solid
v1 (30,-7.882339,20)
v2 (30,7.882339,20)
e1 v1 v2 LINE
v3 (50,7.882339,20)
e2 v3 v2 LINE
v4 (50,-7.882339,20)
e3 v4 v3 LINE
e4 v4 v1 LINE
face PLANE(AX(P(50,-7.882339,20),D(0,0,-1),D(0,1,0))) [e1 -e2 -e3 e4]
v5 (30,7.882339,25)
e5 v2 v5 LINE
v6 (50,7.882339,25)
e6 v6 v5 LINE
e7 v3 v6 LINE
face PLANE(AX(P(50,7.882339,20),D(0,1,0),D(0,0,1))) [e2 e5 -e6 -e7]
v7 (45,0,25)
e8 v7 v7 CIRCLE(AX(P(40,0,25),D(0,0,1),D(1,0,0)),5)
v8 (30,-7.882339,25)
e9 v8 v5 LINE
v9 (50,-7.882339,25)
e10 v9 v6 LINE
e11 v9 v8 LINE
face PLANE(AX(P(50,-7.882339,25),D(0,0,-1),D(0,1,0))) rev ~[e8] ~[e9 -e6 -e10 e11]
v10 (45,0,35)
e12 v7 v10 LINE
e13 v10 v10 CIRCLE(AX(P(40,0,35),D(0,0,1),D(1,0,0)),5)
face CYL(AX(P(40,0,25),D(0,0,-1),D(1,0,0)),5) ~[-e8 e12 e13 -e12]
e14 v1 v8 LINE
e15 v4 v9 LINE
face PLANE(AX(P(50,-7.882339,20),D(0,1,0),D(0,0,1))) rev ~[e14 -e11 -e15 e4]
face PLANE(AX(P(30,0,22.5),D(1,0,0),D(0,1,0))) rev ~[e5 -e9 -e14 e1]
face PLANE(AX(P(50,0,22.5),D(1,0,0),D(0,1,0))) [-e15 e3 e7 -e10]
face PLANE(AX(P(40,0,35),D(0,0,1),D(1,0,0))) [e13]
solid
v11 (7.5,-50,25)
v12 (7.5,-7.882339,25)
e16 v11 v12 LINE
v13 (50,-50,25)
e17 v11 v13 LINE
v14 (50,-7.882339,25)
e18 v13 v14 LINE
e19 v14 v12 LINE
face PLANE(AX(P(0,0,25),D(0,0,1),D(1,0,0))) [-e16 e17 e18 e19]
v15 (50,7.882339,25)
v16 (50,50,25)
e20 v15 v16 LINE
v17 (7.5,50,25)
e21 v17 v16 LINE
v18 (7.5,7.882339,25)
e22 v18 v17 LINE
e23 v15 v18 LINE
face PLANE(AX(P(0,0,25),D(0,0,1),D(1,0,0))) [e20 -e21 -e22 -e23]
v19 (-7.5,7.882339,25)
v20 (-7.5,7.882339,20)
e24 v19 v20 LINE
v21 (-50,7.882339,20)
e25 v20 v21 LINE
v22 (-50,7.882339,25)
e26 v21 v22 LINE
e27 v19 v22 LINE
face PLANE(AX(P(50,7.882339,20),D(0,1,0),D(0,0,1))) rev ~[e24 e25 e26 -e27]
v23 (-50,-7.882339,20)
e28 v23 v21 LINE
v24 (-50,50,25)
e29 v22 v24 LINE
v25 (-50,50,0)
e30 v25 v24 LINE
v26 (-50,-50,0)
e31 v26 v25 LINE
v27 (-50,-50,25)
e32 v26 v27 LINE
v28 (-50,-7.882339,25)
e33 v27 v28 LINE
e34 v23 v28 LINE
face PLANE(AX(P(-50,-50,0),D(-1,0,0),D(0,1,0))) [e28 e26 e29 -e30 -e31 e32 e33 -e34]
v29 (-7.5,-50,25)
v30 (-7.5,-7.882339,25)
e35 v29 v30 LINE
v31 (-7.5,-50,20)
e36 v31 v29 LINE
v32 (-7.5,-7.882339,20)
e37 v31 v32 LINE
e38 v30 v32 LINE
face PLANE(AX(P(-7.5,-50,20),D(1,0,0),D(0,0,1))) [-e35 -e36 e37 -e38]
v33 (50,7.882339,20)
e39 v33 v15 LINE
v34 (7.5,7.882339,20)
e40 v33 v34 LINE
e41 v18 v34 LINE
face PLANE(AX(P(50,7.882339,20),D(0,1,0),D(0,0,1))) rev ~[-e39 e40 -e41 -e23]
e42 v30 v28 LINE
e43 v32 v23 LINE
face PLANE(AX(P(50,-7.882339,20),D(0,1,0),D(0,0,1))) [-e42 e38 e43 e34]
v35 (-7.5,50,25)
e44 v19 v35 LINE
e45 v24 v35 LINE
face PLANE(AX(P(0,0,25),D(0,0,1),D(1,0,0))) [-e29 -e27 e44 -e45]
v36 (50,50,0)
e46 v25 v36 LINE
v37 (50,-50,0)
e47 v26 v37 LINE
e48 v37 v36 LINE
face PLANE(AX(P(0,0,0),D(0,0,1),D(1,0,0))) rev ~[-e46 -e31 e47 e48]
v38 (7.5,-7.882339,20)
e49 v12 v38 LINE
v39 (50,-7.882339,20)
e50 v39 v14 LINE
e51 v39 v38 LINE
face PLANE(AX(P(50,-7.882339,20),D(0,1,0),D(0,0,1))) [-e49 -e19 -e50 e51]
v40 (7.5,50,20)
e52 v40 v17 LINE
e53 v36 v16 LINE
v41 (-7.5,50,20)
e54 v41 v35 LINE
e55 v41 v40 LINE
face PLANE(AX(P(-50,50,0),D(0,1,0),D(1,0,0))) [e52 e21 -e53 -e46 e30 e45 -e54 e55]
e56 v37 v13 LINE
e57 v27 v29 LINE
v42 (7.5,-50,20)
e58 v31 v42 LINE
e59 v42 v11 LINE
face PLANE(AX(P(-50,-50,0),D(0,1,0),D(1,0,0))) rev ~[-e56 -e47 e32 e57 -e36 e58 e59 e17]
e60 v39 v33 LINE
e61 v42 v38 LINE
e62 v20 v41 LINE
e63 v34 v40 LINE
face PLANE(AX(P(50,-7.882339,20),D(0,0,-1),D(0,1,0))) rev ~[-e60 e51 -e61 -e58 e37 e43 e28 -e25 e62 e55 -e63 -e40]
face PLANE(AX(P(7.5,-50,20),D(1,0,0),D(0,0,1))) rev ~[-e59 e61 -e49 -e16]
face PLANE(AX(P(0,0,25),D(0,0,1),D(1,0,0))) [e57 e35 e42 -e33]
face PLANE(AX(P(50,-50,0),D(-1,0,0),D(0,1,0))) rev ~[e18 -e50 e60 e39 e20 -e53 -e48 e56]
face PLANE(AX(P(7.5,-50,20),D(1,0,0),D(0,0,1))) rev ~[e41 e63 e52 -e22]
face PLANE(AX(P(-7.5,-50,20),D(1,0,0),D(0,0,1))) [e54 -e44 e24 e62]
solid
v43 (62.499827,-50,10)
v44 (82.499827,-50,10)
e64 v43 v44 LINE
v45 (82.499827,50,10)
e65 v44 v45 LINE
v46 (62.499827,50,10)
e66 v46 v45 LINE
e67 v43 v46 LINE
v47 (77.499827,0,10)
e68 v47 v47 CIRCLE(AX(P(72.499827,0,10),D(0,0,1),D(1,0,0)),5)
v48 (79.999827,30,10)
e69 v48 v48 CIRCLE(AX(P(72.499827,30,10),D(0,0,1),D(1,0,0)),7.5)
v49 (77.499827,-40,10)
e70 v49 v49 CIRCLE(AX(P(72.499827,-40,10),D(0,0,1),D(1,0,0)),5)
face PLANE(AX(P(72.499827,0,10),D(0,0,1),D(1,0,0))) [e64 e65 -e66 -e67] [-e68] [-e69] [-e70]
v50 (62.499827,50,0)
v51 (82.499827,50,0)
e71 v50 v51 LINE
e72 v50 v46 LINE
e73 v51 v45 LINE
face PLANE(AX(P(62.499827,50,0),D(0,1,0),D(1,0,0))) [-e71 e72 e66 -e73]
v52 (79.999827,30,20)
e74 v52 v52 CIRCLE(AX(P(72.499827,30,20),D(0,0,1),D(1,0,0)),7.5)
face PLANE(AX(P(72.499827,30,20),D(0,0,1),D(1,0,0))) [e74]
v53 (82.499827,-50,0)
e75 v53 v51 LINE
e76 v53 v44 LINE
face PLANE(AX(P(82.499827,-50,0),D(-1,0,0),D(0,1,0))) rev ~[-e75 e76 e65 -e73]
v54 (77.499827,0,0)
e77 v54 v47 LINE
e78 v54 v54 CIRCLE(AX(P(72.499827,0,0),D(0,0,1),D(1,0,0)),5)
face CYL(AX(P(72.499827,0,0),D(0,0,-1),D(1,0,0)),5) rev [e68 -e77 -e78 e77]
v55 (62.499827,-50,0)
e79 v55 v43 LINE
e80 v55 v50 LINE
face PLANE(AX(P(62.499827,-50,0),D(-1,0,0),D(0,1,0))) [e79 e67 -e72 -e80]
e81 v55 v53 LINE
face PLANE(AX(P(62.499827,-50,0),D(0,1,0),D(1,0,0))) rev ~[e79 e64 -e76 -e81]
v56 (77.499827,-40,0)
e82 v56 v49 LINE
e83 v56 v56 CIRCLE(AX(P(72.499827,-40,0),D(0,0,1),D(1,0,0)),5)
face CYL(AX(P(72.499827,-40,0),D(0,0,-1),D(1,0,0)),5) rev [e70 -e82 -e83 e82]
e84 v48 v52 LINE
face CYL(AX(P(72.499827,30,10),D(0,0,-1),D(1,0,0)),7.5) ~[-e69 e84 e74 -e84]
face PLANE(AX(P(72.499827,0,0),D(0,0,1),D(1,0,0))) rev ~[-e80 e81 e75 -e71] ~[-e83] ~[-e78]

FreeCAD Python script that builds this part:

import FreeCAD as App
import Part
import Sketcher
Q = App.Units.Quantity

doc = App.newDocument("Part")
body = doc.addObject("PartDesign::Body", "Body")

sketch1 = doc.addObject("Sketcher::SketchObject", "Sketch")
body.addObject(sketch1)
sketch1.AttachmentSupport = (doc.XY_Plane, [""])
sketch1.MapMode = "FlatFace"
sketch1.addGeometry([
    Part.LineSegment(App.Vector(-50, 50, 0), App.Vector(-50, -50, 0)),
    Part.LineSegment(App.Vector(-50, -50, 0), App.Vector(50, -50, 0)),
    Part.LineSegment(App.Vector(50, -50, 0), App.Vector(50, 50, 0)),
    Part.LineSegment(App.Vector(50, 50, 0), App.Vector(-50, 50, 0)),
], False)
sketch1.addConstraint([
    Sketcher.Constraint("Coincident", 0, 2, 1, 1),
    Sketcher.Constraint("Coincident", 1, 2, 2, 1),
    Sketcher.Constraint("Coincident", 2, 2, 3, 1),
    Sketcher.Constraint("Coincident", 3, 2, 0, 1),
    Sketcher.Constraint("Vertical", 0),
    Sketcher.Constraint("Horizontal", 1),
    Sketcher.Constraint("Vertical", 2),
    Sketcher.Constraint("Horizontal", 3),
    Sketcher.Constraint("Symmetric", 0, 2, 2, 2, -1, 1),
    Sketcher.Constraint("Equal", 3, 0),
    Sketcher.Constraint("DistanceX", 1, 1, 1, 2, Q("100 mm")),
])
pad1 = doc.addObject("PartDesign::Pad", "Pad")
body.addObject(pad1)
pad1.Profile = sketch1
pad1.Length = 25

sketch2 = doc.addObject("Sketcher::SketchObject", "Sketch001")
body.addObject(sketch2)
sketch2.AttachmentSupport = (doc.YZ_Plane, [""])
sketch2.MapMode = "FlatFace"
sketch2.AttachmentOffset = App.Placement(App.Vector(0, 0, 50), App.Rotation())
sketch2.addGeometry([
    Part.LineSegment(App.Vector(-8, 25, 0), App.Vector(-8, 20, 0)),
    Part.LineSegment(App.Vector(-8, 20, 0), App.Vector(8, 20, 0)),
    Part.LineSegment(App.Vector(8, 20, 0), App.Vector(8, 25, 0)),
    Part.LineSegment(App.Vector(8, 25, 0), App.Vector(-8, 25, 0)),
], False)
sketch2.addConstraint([
    Sketcher.Constraint("Coincident", 0, 2, 1, 1),
    Sketcher.Constraint("Coincident", 1, 2, 2, 1),
    Sketcher.Constraint("Coincident", 2, 2, 3, 1),
    Sketcher.Constraint("Coincident", 3, 2, 0, 1),
    Sketcher.Constraint("Vertical", 0),
    Sketcher.Constraint("Horizontal", 1),
    Sketcher.Constraint("Vertical", 2),
    Sketcher.Constraint("Horizontal", 3),
    Sketcher.Constraint("DistanceY", 0, 2, 0, 1, Q("5 mm")),
    Sketcher.Constraint("DistanceY", -1, 1, 0, 2, Q("20 mm")),
    Sketcher.Constraint("DistanceX", 1, 1, 1, 2, Q("15.764678 mm")),
    Sketcher.Constraint("DistanceX", 0, 2, -1, 1, Q("7.882339 mm")),
])
pocket1 = doc.addObject("PartDesign::Pocket", "Pocket")
body.addObject(pocket1)
pocket1.Profile = sketch2
pocket1.Type = "ThroughAll"

sketch3 = doc.addObject("Sketcher::SketchObject", "Sketch002")
body.addObject(sketch3)
sketch3.AttachmentSupport = (doc.XZ_Plane, [""])
sketch3.MapMode = "FlatFace"
sketch3.AttachmentOffset = App.Placement(App.Vector(0, 0, 50), App.Rotation())
sketch3.addGeometry([
    Part.LineSegment(App.Vector(-8, 25, 0), App.Vector(-8, 20, 0)),
    Part.LineSegment(App.Vector(-8, 20, 0), App.Vector(8, 20, 0)),
    Part.LineSegment(App.Vector(8, 20, 0), App.Vector(8, 25, 0)),
    Part.LineSegment(App.Vector(8, 25, 0), App.Vector(-8, 25, 0)),
], False)
sketch3.addConstraint([
    Sketcher.Constraint("Coincident", 0, 2, 1, 1),
    Sketcher.Constraint("Coincident", 1, 2, 2, 1),
    Sketcher.Constraint("Coincident", 2, 2, 3, 1),
    Sketcher.Constraint("Coincident", 3, 2, 0, 1),
    Sketcher.Constraint("Vertical", 0),
    Sketcher.Constraint("Horizontal", 1),
    Sketcher.Constraint("Vertical", 2),
    Sketcher.Constraint("Horizontal", 3),
    Sketcher.Constraint("DistanceX", 1, 1, 1, 2, Q("15 mm")),
    Sketcher.Constraint("DistanceY", 0, 2, 0, 1, Q("5 mm")),
    Sketcher.Constraint("DistanceY", -1, 1, 0, 2, Q("20 mm")),
    Sketcher.Constraint("DistanceX", 0, 2, -1, 1, Q("7.5 mm")),
])
pocket2 = doc.addObject("PartDesign::Pocket", "Pocket001")
body.addObject(pocket2)
pocket2.Profile = sketch3
pocket2.Type = "ThroughAll"
body2 = doc.addObject("PartDesign::Body", "Body001")

sketch4 = doc.addObject("Sketcher::SketchObject", "Sketch003")
body2.addObject(sketch4)
sketch4.AttachmentSupport = (doc.getObject("YZ_Plane001"), [""])
sketch4.MapMode = "FlatFace"
sketch4.AttachmentOffset = App.Placement(App.Vector(0, 0, 50), App.Rotation())
sketch4.addGeometry([
    Part.LineSegment(App.Vector(-8, 25, 0), App.Vector(-8, 20, 0)),
    Part.LineSegment(App.Vector(-8, 20, 0), App.Vector(8, 20, 0)),
    Part.LineSegment(App.Vector(8, 20, 0), App.Vector(8, 25, 0)),
    Part.LineSegment(App.Vector(8, 25, 0), App.Vector(-8, 25, 0)),
], False)
sketch4.addConstraint([
    Sketcher.Constraint("Coincident", 0, 2, 1, 1),
    Sketcher.Constraint("Coincident", 1, 2, 2, 1),
    Sketcher.Constraint("Coincident", 2, 2, 3, 1),
    Sketcher.Constraint("Coincident", 3, 2, 0, 1),
    Sketcher.Constraint("Vertical", 0),
    Sketcher.Constraint("Horizontal", 1),
    Sketcher.Constraint("Vertical", 2),
    Sketcher.Constraint("Horizontal", 3),
    Sketcher.Constraint("DistanceY", 0, 2, 0, 1, Q("5 mm")),
    Sketcher.Constraint("DistanceY", -1, 1, 0, 2, Q("20 mm")),
    Sketcher.Constraint("DistanceX", 1, 1, 1, 2, Q("15.764678 mm")),
    Sketcher.Constraint("DistanceX", 0, 2, -1, 1, Q("7.882339 mm")),
])
pad2 = doc.addObject("PartDesign::Pad", "Pad001")
body2.addObject(pad2)
pad2.Profile = sketch4
pad2.Length = 20
pad2.Reversed = True

sketch5 = doc.addObject("Sketcher::SketchObject", "Sketch004")
body2.addObject(sketch5)
sketch5.AttachmentSupport = (doc.getObject("XY_Plane001"), [""])
sketch5.MapMode = "FlatFace"
sketch5.AttachmentOffset = App.Placement(App.Vector(0, 0, 25), App.Rotation())
sketch5.addGeometry(Part.Circle(App.Vector(40, 0, 0), App.Vector(0, 0, 1), 5), False)
sketch5.addConstraint([
    Sketcher.Constraint("PointOnObject", 0, 3, -1),
    Sketcher.Constraint("Diameter", 0, Q("10 mm")),
    Sketcher.Constraint("DistanceX", -1, 1, 0, 3, Q("40 mm")),
])
pad3 = doc.addObject("PartDesign::Pad", "Pad002")
body2.addObject(pad3)
pad3.Profile = sketch5
pad3.Length = 10
body3 = doc.addObject("PartDesign::Body", "Body002")

sketch6 = doc.addObject("Sketcher::SketchObject", "Sketch005")
body3.addObject(sketch6)
sketch6.AttachmentSupport = (doc.getObject("XY_Plane002"), [""])
sketch6.MapMode = "FlatFace"
sketch6.addGeometry([
    Part.LineSegment(App.Vector(62, 50, 0), App.Vector(62, -50, 0)),
    Part.LineSegment(App.Vector(62, -50, 0), App.Vector(82, -50, 0)),
    Part.LineSegment(App.Vector(82, -50, 0), App.Vector(82, 50, 0)),
    Part.LineSegment(App.Vector(82, 50, 0), App.Vector(62, 50, 0)),
    Part.Circle(App.Vector(72, -40, 0), App.Vector(0, 0, 1), 5),
    Part.Circle(App.Vector(72, 0, 0), App.Vector(0, 0, 1), 5),
], False)
sketch6.addConstraint([
    Sketcher.Constraint("Coincident", 0, 2, 1, 1),
    Sketcher.Constraint("Coincident", 1, 2, 2, 1),
    Sketcher.Constraint("Coincident", 2, 2, 3, 1),
    Sketcher.Constraint("Coincident", 3, 2, 0, 1),
    Sketcher.Constraint("Vertical", 0),
    Sketcher.Constraint("Horizontal", 1),
    Sketcher.Constraint("Vertical", 2),
    Sketcher.Constraint("Horizontal", 3),
    Sketcher.Constraint("Equal", 4, 5),
    Sketcher.Constraint("PointOnObject", 5, 3, -1),
    Sketcher.Constraint("Vertical", 4, 3, 5, 3),
    Sketcher.Constraint("Diameter", 4, Q("10 mm")),
    Sketcher.Constraint("DistanceX", 1, 1, 1, 2, Q("20 mm")),
    Sketcher.Constraint("DistanceY", 0, 2, 0, 1, Q("100 mm")),
    Sketcher.Constraint("DistanceY", 4, 3, -1, 1, Q("40 mm")),
    Sketcher.Constraint("DistanceY", 0, 2, -1, 1, Q("50 mm")),
    Sketcher.Constraint("DistanceX", 0, 2, 4, 3, Q("10 mm")),
    Sketcher.Constraint("DistanceX", -1, 1, 4, 3, Q("72.499827 mm")),
])
pad4 = doc.addObject("PartDesign::Pad", "Pad003")
body3.addObject(pad4)
pad4.Profile = sketch6
pad4.Length = 10

sketch7 = doc.addObject("Sketcher::SketchObject", "Sketch006")
body3.addObject(sketch7)
sketch7.AttachmentSupport = (doc.getObject("XY_Plane002"), [""])
sketch7.MapMode = "FlatFace"
sketch7.AttachmentOffset = App.Placement(App.Vector(0, 0, 10), App.Rotation())
sketch7.addGeometry(Part.Circle(App.Vector(72, 30, 0), App.Vector(0, 0, 1), 8), False)
sketch7.addConstraint([
    Sketcher.Constraint("Diameter", 0, Q("15 mm")),
    Sketcher.Constraint("DistanceY", -1, 1, 0, 3, Q("30 mm")),
    Sketcher.Constraint("DistanceX", -1, 1, 0, 3, Q("72.499827 mm")),
])
pad5 = doc.addObject("PartDesign::Pad", "Pad004")
body3.addObject(pad5)
pad5.Profile = sketch7
pad5.Length = 10

doc.recompute()
